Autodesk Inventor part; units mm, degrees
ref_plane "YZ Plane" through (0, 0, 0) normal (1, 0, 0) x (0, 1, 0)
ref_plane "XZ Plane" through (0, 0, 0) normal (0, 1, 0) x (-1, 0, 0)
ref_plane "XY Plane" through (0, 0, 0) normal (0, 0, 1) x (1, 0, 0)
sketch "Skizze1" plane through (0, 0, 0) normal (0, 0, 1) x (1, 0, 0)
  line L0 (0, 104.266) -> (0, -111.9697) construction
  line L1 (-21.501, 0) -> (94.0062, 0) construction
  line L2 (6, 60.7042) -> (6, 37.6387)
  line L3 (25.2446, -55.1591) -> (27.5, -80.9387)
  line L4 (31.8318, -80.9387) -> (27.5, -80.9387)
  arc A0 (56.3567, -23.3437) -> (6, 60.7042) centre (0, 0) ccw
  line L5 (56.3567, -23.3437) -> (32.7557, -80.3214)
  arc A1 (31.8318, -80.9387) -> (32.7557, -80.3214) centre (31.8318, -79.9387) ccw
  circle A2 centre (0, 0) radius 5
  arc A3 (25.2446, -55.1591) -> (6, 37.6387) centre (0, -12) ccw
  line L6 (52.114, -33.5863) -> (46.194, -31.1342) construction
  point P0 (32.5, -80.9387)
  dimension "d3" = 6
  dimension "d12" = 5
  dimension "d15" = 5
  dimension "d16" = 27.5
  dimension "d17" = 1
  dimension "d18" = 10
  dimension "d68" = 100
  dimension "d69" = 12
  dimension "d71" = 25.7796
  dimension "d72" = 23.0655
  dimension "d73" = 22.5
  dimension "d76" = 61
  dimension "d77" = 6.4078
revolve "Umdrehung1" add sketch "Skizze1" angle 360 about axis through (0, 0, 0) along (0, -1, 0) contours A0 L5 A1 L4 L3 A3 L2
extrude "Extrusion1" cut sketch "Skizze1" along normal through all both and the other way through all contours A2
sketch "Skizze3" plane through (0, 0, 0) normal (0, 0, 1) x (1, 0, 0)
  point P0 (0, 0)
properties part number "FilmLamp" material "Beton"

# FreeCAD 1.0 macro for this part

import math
import FreeCAD as App
import Part
import Sketcher
from FreeCAD import Vector
Q = App.Units.Quantity

doc = App.newDocument("Part")
body = doc.addObject("PartDesign::Body", "Body")

sketch1 = doc.addObject("Sketcher::SketchObject", "Sketch")
body.addObject(sketch1)
sketch1.AttachmentSupport = (doc.XY_Plane, [""])
sketch1.MapMode = "FlatFace"
sketch1.addGeometry(Part.ArcOfCircle(Part.Circle(Vector(0, 0, 0), Vector(0, 0, 1), 61), math.radians(-22), math.radians(84)), False)
sketch1.addGeometry(Part.LineSegment(Vector(6, 60.7, 0), Vector(6, 37.6, 0)), False)
sketch1.addGeometry(Part.ArcOfCircle(Part.Circle(Vector(0, -12, 0), Vector(0, 0, 1), 50), math.radians(-60), math.radians(83)), False)
sketch1.addGeometry(Part.LineSegment(Vector(25.2, -55.2, 0), Vector(27.5, -80.9, 0)), False)
sketch1.addGeometry(Part.LineSegment(Vector(27.5, -80.9, 0), Vector(31.8, -80.9, 0)), False)
sketch1.addGeometry(Part.ArcOfCircle(Part.Circle(Vector(31.8, -79.9, 0), Vector(0, 0, 1), 1), math.radians(-90), math.radians(-23)), False)
sketch1.addGeometry(Part.LineSegment(Vector(32.8, -80.3, 0), Vector(56.4, -23.3, 0)), False)
sketch1.addConstraint(Sketcher.Constraint("Coincident", 0, 2, 1, 1))
sketch1.addConstraint(Sketcher.Constraint("Coincident", 1, 2, 2, 2))
sketch1.addConstraint(Sketcher.Constraint("Coincident", 2, 1, 3, 1))
sketch1.addConstraint(Sketcher.Constraint("Coincident", 3, 2, 4, 1))
sketch1.addConstraint(Sketcher.Constraint("Tangent", 4, 2, 5, 1))
sketch1.addConstraint(Sketcher.Constraint("Tangent", 5, 2, 6, 1))
sketch1.addConstraint(Sketcher.Constraint("Tangent", 6, 2, 0, 1))
sketch1.addConstraint(Sketcher.Constraint("Vertical", 1))
sketch1.addConstraint(Sketcher.Constraint("Horizontal", 4))
sketch1.addConstraint(Sketcher.Constraint("Coincident", 0, 3, -1, 1))
sketch1.addConstraint(Sketcher.Constraint("PointOnObject", 2, 3, -2))
sketch1.addConstraint(Sketcher.Constraint("Radius", 0, Q("61 mm")))
sketch1.addConstraint(Sketcher.Constraint("Radius", 2, Q("50 mm")))
sketch1.addConstraint(Sketcher.Constraint("Radius", 5, Q("1 mm")))
sketch1.addConstraint(Sketcher.Constraint("DistanceY", 2, 3, -1, 1, Q("12 mm")))
sketch1.addConstraint(Sketcher.Constraint("DistanceX", -1, 1, 0, 2, Q("6 mm")))
sketch1.addConstraint(Sketcher.Constraint("DistanceX", -1, 1, 3, 2, Q("27.5 mm")))
sketch1.addConstraint(Sketcher.Constraint("Angle", 3, Q("-85 deg")))
sketch1.addConstraint(Sketcher.Constraint("Angle", 6, Q("67.5 deg")))
sketch1.addConstraint(Sketcher.Constraint("DistanceY", 3, 2, 2, 1, Q("25.7796 mm")))
revolution = doc.addObject("PartDesign::Revolution", "Revolution")
body.addObject(revolution)
revolution.Profile = sketch1
revolution.ReferenceAxis = (sketch1, ["V_Axis"])
revolution.Angle = 360

sketch2 = doc.addObject("Sketcher::SketchObject", "Sketch001")
body.addObject(sketch2)
sketch2.AttachmentSupport = (doc.XY_Plane, [""])
sketch2.MapMode = "FlatFace"
sketch2.addGeometry(Part.Circle(Vector(0, 0, 0), Vector(0, 0, 1), 5), False)
sketch2.addConstraint(Sketcher.Constraint("Coincident", 0, 3, -1, 1))
sketch2.addConstraint(Sketcher.Constraint("Diameter", 0, Q("10 mm")))
pocket1 = doc.addObject("PartDesign::Pocket", "Pocket")
body.addObject(pocket1)
pocket1.Profile = sketch2
pocket1.Type = "ThroughAll"
pocket1.Midplane = True

doc.recompute()
